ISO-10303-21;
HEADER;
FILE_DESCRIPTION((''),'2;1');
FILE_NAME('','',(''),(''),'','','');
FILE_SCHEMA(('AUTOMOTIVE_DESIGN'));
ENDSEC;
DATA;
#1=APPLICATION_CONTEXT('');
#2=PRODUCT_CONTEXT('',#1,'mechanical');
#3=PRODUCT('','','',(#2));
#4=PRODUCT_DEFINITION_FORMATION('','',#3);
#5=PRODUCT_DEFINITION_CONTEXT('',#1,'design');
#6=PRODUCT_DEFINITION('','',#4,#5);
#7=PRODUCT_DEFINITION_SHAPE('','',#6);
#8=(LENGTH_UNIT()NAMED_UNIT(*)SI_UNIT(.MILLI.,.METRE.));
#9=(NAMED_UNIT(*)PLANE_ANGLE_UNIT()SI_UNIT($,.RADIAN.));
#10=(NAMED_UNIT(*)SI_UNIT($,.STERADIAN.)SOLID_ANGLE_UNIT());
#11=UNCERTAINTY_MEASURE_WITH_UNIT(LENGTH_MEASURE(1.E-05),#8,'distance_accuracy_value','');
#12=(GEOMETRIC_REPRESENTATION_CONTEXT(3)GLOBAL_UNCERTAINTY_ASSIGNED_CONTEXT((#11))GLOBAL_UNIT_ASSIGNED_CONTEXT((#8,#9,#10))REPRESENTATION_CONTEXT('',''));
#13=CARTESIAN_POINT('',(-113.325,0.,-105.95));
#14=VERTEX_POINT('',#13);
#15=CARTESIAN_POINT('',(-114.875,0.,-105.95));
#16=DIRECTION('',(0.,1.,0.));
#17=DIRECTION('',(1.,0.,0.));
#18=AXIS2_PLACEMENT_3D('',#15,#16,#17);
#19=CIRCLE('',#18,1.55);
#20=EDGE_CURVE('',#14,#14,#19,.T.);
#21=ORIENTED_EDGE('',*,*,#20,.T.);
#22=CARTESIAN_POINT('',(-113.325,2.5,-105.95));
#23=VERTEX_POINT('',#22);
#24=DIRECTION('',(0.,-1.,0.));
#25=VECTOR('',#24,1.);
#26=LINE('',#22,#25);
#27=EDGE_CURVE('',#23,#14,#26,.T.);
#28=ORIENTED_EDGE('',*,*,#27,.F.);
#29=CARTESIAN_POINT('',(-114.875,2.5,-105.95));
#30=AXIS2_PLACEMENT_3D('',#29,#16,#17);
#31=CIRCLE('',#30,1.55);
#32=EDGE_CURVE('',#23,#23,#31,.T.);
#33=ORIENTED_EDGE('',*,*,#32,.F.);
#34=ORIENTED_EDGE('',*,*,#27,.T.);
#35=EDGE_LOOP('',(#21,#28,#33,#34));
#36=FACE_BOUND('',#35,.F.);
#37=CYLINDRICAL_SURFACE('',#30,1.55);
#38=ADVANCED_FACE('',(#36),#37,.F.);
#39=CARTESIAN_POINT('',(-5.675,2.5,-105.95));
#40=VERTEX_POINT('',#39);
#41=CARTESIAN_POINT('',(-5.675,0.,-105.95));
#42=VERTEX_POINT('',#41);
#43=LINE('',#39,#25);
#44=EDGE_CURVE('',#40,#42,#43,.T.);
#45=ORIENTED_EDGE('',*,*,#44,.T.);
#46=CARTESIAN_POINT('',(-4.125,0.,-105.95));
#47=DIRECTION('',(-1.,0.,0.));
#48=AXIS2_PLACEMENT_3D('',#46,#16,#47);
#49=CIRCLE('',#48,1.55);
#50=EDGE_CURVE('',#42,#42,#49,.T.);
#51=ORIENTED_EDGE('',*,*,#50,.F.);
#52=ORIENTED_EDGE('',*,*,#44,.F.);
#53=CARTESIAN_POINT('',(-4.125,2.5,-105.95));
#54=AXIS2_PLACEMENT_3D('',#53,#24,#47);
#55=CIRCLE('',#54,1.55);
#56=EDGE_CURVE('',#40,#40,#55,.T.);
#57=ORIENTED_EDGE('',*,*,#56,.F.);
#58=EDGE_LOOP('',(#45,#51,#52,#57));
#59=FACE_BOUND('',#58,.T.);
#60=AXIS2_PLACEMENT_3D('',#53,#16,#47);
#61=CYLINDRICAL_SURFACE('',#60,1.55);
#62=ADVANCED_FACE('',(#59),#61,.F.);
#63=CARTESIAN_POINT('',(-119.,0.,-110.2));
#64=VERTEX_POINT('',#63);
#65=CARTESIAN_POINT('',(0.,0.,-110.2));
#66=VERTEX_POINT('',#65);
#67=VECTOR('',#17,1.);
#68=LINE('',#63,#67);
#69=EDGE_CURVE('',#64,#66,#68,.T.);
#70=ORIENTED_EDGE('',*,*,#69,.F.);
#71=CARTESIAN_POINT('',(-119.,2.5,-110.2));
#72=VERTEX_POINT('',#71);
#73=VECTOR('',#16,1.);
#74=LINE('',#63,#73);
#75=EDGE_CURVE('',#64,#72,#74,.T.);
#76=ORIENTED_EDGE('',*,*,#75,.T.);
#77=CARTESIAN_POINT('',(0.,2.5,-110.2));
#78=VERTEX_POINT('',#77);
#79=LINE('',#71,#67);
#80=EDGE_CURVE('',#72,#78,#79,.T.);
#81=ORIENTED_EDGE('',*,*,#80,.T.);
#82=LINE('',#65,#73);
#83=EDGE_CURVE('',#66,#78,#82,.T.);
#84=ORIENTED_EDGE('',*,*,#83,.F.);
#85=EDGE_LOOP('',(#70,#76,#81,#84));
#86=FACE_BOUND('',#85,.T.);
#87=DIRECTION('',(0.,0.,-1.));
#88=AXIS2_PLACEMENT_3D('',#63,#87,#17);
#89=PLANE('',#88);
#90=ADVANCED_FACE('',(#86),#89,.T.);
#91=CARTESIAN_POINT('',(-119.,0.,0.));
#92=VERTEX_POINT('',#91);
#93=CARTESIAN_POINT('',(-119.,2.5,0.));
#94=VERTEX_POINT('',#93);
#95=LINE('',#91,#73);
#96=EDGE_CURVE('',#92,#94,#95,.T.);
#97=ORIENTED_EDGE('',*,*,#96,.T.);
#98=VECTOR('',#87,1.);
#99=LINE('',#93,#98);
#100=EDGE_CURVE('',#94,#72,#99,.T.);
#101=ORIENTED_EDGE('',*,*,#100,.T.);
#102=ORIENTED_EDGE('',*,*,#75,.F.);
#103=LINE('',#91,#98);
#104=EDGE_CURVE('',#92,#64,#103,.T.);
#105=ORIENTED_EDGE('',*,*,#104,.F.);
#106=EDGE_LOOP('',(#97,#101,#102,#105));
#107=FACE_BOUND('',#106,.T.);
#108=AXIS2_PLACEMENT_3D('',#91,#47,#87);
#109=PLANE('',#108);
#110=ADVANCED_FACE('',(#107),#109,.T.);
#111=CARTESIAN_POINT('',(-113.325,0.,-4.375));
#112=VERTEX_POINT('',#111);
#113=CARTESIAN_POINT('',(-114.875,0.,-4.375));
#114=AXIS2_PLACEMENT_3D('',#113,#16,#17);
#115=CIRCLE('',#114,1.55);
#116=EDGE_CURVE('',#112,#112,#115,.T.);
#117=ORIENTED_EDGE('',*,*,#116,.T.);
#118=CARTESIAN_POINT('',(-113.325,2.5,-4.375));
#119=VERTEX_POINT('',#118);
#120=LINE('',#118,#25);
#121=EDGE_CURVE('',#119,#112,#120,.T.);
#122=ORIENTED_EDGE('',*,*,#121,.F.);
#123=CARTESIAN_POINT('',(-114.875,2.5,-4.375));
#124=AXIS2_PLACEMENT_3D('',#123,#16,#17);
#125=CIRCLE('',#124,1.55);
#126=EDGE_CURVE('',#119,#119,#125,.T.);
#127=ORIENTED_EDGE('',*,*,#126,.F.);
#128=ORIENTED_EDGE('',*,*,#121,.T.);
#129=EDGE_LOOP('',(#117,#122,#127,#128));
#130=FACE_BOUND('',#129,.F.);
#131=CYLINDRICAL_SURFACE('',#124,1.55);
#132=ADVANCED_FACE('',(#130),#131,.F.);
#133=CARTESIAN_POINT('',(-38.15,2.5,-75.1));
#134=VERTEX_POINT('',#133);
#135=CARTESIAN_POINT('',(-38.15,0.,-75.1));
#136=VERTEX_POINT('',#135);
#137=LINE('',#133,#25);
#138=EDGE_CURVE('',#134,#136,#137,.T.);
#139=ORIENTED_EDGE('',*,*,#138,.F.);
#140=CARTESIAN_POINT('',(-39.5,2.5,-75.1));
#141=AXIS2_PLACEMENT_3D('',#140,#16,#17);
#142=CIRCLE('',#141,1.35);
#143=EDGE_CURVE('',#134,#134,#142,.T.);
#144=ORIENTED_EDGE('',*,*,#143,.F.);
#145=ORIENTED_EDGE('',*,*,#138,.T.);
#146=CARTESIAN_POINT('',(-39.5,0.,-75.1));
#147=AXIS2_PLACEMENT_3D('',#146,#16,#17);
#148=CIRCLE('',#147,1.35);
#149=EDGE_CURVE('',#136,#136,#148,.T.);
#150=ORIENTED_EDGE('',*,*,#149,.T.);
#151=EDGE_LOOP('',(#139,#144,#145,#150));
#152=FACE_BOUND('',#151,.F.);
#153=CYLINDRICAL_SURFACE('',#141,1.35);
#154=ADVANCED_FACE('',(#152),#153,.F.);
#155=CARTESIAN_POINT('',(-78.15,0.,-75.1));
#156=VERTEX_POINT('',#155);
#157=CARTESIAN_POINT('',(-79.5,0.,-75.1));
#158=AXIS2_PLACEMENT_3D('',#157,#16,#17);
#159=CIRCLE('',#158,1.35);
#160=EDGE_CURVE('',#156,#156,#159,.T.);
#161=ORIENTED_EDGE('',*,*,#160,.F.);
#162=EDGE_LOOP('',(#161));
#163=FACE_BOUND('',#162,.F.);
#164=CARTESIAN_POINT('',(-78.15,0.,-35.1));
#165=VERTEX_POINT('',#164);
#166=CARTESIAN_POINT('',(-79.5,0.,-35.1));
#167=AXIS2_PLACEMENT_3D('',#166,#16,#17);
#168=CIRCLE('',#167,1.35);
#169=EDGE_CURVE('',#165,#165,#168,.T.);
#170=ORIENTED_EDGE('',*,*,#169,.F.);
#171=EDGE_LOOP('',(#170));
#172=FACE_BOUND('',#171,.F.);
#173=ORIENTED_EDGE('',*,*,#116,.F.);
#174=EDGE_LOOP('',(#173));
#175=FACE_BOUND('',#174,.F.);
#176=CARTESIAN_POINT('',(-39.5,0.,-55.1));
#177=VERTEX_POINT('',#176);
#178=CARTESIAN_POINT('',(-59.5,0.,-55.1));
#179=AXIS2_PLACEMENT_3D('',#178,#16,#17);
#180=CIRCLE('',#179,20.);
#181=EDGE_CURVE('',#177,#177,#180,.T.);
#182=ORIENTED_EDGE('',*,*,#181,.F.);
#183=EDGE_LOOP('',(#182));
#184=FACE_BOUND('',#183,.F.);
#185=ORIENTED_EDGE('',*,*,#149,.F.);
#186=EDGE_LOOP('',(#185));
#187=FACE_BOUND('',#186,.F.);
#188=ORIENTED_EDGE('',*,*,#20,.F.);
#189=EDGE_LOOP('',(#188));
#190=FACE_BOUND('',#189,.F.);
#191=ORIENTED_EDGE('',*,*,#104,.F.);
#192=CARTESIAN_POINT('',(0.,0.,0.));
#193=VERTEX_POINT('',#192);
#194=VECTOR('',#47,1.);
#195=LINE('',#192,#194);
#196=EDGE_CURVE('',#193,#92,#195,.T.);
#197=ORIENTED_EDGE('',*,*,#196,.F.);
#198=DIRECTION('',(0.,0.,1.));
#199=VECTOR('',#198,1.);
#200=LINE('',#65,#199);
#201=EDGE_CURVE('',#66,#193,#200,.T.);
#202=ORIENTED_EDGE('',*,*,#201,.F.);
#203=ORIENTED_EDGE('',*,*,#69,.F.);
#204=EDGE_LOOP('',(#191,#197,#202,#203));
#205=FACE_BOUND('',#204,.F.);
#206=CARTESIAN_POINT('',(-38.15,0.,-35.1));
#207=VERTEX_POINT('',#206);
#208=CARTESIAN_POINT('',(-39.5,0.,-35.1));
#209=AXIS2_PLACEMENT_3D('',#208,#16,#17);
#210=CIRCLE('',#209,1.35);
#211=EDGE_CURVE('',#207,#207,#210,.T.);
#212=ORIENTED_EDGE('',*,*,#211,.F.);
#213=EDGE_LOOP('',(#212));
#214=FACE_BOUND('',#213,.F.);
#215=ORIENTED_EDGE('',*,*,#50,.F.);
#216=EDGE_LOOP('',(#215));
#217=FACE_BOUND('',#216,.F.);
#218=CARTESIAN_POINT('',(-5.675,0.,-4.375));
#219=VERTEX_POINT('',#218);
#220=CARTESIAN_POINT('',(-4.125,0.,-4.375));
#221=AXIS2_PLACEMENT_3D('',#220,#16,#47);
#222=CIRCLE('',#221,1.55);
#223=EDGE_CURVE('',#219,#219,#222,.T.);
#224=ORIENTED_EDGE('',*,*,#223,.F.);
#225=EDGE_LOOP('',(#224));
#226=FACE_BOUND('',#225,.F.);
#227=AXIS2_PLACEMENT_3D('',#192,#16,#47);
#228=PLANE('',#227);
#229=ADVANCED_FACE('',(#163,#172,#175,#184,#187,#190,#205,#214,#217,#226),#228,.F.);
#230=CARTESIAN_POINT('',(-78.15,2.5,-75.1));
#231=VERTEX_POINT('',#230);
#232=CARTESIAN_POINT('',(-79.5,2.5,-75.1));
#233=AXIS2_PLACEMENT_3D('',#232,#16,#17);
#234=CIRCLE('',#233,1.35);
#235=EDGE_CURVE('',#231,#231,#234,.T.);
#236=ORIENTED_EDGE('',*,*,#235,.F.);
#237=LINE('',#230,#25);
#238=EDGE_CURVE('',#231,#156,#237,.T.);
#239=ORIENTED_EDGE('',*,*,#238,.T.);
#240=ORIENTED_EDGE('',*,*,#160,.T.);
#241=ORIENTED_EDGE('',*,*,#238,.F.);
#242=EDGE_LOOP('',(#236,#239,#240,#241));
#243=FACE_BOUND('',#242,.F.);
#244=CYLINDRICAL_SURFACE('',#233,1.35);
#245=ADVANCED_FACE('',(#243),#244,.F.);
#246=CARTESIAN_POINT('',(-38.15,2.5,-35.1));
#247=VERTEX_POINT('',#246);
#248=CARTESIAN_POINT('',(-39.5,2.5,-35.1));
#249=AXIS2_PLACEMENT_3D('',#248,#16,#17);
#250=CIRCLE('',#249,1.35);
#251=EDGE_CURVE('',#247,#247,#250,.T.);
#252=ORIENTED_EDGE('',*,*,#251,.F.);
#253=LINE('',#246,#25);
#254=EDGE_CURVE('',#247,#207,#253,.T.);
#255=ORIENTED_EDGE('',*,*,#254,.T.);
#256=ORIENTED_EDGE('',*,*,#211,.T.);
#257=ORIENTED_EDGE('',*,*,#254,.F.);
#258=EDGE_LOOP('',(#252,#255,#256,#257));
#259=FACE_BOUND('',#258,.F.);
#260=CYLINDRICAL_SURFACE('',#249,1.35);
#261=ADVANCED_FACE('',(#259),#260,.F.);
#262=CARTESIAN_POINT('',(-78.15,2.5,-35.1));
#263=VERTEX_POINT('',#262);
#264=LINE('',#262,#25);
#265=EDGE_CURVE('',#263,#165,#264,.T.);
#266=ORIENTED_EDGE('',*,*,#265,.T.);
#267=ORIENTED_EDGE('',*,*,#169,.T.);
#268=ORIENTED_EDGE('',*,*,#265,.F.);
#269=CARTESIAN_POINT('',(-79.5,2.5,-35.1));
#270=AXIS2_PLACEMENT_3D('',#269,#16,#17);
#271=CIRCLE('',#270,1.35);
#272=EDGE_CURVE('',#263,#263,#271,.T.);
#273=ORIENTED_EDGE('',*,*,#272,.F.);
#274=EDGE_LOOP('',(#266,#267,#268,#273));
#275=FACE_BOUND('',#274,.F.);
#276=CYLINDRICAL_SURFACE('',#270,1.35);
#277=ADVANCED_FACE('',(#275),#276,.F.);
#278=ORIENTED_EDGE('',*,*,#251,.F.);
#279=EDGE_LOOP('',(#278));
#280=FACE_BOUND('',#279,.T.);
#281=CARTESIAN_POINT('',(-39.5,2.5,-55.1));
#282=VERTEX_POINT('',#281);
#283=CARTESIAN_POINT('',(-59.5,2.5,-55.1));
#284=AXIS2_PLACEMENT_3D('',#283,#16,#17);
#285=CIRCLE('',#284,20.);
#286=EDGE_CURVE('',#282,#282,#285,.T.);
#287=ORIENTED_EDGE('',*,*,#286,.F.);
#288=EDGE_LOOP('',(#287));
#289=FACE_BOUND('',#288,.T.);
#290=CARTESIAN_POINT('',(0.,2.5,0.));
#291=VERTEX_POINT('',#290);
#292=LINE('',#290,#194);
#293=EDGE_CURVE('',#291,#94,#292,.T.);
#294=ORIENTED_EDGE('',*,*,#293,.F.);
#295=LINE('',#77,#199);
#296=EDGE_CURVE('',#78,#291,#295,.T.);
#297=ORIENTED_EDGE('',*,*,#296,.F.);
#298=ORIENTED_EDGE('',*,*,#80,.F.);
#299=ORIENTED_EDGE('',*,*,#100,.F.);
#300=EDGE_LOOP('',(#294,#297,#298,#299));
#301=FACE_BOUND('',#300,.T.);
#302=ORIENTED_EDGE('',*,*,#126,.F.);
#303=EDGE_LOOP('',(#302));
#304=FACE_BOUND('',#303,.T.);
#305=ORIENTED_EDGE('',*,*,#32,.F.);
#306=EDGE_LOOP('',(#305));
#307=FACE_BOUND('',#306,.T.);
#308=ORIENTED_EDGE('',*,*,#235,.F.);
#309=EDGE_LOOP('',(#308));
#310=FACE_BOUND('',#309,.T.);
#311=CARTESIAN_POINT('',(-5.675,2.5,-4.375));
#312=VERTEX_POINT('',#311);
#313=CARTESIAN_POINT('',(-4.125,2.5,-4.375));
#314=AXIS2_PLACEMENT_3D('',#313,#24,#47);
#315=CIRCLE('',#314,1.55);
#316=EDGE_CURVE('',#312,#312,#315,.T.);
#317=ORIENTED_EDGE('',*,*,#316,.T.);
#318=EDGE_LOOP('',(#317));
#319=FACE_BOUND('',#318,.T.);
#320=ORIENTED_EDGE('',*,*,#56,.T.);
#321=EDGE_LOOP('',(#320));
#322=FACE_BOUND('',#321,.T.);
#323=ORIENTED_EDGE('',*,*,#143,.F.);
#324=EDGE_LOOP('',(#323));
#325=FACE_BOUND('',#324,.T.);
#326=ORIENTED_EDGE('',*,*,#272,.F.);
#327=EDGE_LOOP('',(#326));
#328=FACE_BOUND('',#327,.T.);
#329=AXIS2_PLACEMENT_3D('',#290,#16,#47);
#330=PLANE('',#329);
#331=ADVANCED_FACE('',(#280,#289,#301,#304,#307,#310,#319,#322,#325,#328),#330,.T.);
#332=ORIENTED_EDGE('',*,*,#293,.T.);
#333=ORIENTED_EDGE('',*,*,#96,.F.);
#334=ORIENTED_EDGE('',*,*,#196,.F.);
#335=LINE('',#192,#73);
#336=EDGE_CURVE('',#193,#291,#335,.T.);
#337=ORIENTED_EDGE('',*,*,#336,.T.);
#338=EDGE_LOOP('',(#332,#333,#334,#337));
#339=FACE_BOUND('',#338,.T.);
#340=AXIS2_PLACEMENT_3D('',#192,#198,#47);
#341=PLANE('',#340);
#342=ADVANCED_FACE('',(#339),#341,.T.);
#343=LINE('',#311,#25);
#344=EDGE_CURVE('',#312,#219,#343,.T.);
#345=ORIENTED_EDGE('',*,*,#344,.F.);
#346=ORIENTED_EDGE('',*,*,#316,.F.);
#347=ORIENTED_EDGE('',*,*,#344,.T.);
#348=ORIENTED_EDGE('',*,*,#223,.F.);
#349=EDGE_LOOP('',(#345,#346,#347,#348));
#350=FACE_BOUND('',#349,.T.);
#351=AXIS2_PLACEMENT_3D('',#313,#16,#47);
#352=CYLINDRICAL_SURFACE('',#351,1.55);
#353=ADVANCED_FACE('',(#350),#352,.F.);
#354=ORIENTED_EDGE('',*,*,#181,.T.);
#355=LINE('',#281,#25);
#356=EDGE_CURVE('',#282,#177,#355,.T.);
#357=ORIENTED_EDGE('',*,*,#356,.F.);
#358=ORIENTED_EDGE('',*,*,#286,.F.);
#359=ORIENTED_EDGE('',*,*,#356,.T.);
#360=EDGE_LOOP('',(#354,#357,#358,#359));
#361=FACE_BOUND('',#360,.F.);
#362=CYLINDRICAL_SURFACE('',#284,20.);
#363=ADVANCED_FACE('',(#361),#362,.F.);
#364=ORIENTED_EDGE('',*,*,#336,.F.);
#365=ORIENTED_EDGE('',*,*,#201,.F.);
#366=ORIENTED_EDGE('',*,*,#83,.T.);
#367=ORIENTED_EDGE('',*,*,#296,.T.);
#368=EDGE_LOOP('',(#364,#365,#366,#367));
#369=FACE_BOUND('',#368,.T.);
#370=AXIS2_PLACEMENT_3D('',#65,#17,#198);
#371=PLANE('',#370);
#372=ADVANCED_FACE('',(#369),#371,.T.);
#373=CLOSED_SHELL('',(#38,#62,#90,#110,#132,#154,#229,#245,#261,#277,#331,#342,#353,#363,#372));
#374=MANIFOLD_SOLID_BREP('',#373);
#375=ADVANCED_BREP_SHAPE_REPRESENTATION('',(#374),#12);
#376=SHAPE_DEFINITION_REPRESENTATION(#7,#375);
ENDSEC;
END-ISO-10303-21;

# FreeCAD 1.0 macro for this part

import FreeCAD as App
import Part
import Sketcher

V = App.Vector
Q = App.Units.Quantity


def add_polygon(sketch, points):
    """Adds a closed chain of lines whose ends are joined by coincident constraints."""
    first, n = sketch.GeometryCount, len(points)
    for a, b in zip(points, points[1:] + points[:1]):
        sketch.addGeometry(Part.LineSegment(App.Vector(*a, 0), App.Vector(*b, 0)), False)
    for i in range(n):
        sketch.addConstraint(Sketcher.Constraint("Coincident", first + i, 2, first + (i + 1) % n, 1))

doc = App.newDocument("Part")
body = doc.addObject("PartDesign::Body", "Body")

# Sketch on XZ plane
sketch1 = doc.addObject("Sketcher::SketchObject", "Sketch")
body.addObject(sketch1)
sketch1.AttachmentSupport = (doc.XZ_Plane, [""])
sketch1.MapMode = "FlatFace"
add_polygon(sketch1, [(-119, 0), (0, 0), (0, -110), (-119, -110)])  # lines 0-3
sketch1.addConstraint([
    Sketcher.Constraint("Horizontal", 0),
    Sketcher.Constraint("Vertical", 1),
    Sketcher.Constraint("Horizontal", 2),
    Sketcher.Constraint("Vertical", 3),
    Sketcher.Constraint("Coincident", 0, 2, -1, 1),
    Sketcher.Constraint("DistanceX", 0, 1, 0, 2, Q("119 mm")),
    Sketcher.Constraint("DistanceY", 1, 2, 1, 1, Q("110.2 mm")),
])
pad1 = doc.addObject("PartDesign::Pad", "Pad")
body.addObject(pad1)
pad1.Profile = sketch1
pad1.Length = 2.5
pad1.Reversed = True

# Sketch on XZ plane
sketch2 = doc.addObject("Sketcher::SketchObject", "Sketch001")
body.addObject(sketch2)
sketch2.AttachmentSupport = (doc.XZ_Plane, [""])
sketch2.MapMode = "FlatFace"
sketch2.AttachmentOffset = App.Placement(V(0, 0, -2.5), App.Rotation())
sketch2.addGeometry([
    Part.Circle(V(-114.9, -4.4, 0), V(0, 0, 1), 1.6),
    Part.Circle(V(-114.9, -106, 0), V(0, 0, 1), 1.6),
], False)
sketch2.addConstraint([
    Sketcher.Constraint("Equal", 0, 1),
    Sketcher.Constraint("Vertical", 0, 3, 1, 3),
    Sketcher.Constraint("Diameter", 0, Q("3.1 mm")),
    Sketcher.Constraint("DistanceY", 0, 3, -1, 1, Q("4.375 mm")),
    Sketcher.Constraint("DistanceY", 1, 3, -1, 1, Q("105.95 mm")),
    Sketcher.Constraint("DistanceX", 0, 3, -1, 1, Q("114.875 mm")),
])
pocket1 = doc.addObject("PartDesign::Pocket", "Pocket")
body.addObject(pocket1)
pocket1.Profile = sketch2
pocket1.Type = "ThroughAll"
pocket1.Reversed = True
doc.recompute()

datumplane = doc.addObject("PartDesign::Plane", "DatumPlane")
body.addObject(datumplane)
datumplane.AttachmentSupport = (doc.YZ_Plane, [""])
datumplane.MapMode = "FlatFace"
datumplane.AttachmentOffset = App.Placement(V(0, 0, -59.5), App.Rotation())
mirrored = doc.addObject("PartDesign::Mirrored", "Mirrored")
body.addObject(mirrored)
mirrored.Originals = [pocket1]
mirrored.MirrorPlane = (datumplane, [""])
body.Tip = mirrored

# Sketch on XZ plane
sketch3 = doc.addObject("Sketcher::SketchObject", "Sketch002")
body.addObject(sketch3)
sketch3.AttachmentSupport = (doc.XZ_Plane, [""])
sketch3.MapMode = "FlatFace"
sketch3.AttachmentOffset = App.Placement(V(0, 0, -2.5), App.Rotation())
sketch3.addGeometry([
    Part.Circle(V(-59.5, -55.1, 0), V(0, 0, 1), 20),  # 0
    Part.Circle(V(-39.5, -75.1, 0), V(0, 0, 1), 1.4),  # 1
    Part.Circle(V(-39.5, -35.1, 0), V(0, 0, 1), 1.4),  # 2
    Part.Circle(V(-79.5, -35.1, 0), V(0, 0, 1), 1.4),  # 3
    Part.Circle(V(-79.5, -75.1, 0), V(0, 0, 1), 1.4),  # 4
], False)
sketch3.addConstraint([
    Sketcher.Constraint("Equal", 1, 2),
    Sketcher.Constraint("Equal", 2, 3),
    Sketcher.Constraint("Equal", 3, 4),
    Sketcher.Constraint("Horizontal", 2, 3, 3, 3),
    Sketcher.Constraint("Horizontal", 1, 3, 4, 3),
    Sketcher.Constraint("Vertical", 1, 3, 2, 3),
    Sketcher.Constraint("Vertical", 3, 3, 4, 3),
    Sketcher.Constraint("Diameter", 1, Q("2.7 mm")),
    Sketcher.Constraint("Diameter", 0, Q("40 mm")),
    Sketcher.Constraint("DistanceX", 0, 3, 1, 3, Q("20 mm")),
    Sketcher.Constraint("DistanceY", 1, 3, 0, 3, Q("20 mm")),
    Sketcher.Constraint("DistanceY", 0, 3, 2, 3, Q("20 mm")),
    Sketcher.Constraint("DistanceX", 3, 3, 0, 3, Q("20 mm")),
    Sketcher.Constraint("DistanceX", 0, 3, -1, 1, Q("59.5 mm")),
    Sketcher.Constraint("DistanceY", 0, 3, -1, 1, Q("55.1 mm")),
])
pocket2 = doc.addObject("PartDesign::Pocket", "Pocket001")
body.addObject(pocket2)
pocket2.Profile = sketch3
pocket2.Type = "ThroughAll"
pocket2.Reversed = True

doc.recompute()
